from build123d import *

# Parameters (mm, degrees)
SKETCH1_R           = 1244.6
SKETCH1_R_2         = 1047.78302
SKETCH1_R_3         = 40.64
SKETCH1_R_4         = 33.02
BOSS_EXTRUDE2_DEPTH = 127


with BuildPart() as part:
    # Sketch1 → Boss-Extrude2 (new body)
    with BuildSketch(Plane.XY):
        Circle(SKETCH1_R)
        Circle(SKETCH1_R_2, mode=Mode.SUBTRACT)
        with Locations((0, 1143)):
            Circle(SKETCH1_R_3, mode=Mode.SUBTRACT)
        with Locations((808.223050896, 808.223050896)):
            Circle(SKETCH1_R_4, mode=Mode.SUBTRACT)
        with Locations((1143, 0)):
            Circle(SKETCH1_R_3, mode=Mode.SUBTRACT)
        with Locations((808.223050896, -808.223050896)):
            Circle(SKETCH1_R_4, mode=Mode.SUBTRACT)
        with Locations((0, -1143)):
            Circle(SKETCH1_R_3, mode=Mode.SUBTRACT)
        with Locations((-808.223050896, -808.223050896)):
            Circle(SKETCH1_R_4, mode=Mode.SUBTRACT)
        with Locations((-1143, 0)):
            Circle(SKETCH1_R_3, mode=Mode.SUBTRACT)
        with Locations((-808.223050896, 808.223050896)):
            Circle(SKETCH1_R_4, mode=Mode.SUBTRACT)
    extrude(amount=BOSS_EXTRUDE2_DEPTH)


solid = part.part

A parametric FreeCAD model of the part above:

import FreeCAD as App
import Part
import Sketcher
from FreeCAD import Vector
Q = App.Units.Quantity

doc = App.newDocument("Part")
body = doc.addObject("PartDesign::Body", "Body")

sketch1 = body.newObject("Sketcher::SketchObject", "Sketch")
sketch1.AttachmentSupport = (doc.getObject("XY_Plane"), [""])
sketch1.MapMode = "FlatFace"
sketch1.addGeometry([
    Part.Circle(Vector(0, 0, 0), Vector(0, 0, 1), 1245),
    Part.Circle(Vector(-808, -808, 0), Vector(0, 0, 1), 33),
    Part.Circle(Vector(0, -1143, 0), Vector(0, 0, 1), 41),
    Part.Circle(Vector(808, -808, 0), Vector(0, 0, 1), 33),
    Part.Circle(Vector(-1143, 0, 0), Vector(0, 0, 1), 41),
    Part.Circle(Vector(-808, 808, 0), Vector(0, 0, 1), 33),
    Part.Circle(Vector(0, 0, 0), Vector(0, 0, 1), 1048),
    Part.Circle(Vector(1143, 0, 0), Vector(0, 0, 1), 41),
    Part.Circle(Vector(0, 1143, 0), Vector(0, 0, 1), 41),
    Part.Circle(Vector(808, 808, 0), Vector(0, 0, 1), 33),
], False)
sketch1.addConstraint([
    Sketcher.Constraint("Coincident", 0, 3, -1, 1),
    Sketcher.Constraint("Coincident", 6, 3, -1, 1),
    Sketcher.Constraint("Equal", 1, 3),
    Sketcher.Constraint("Equal", 2, 4),
    Sketcher.Constraint("Equal", 3, 5),
    Sketcher.Constraint("Equal", 4, 7),
    Sketcher.Constraint("Equal", 7, 8),
    Sketcher.Constraint("Equal", 5, 9),
    Sketcher.Constraint("Symmetric", 3, 3, 5, 3, -1, 1),
    Sketcher.Constraint("Symmetric", 4, 3, 7, 3, -1, 1),
    Sketcher.Constraint("Symmetric", 2, 3, 8, 3, -1, 1),
    Sketcher.Constraint("Symmetric", 1, 3, 9, 3, -1, 1),
    Sketcher.Constraint("Symmetric", 1, 3, 3, 3, -2),
    Sketcher.Constraint("PointOnObject", 2, 3, -2),
    Sketcher.Constraint("PointOnObject", 4, 3, -1),
    Sketcher.Constraint("Diameter", 0, Q("98 in")),
    Sketcher.Constraint("Diameter", 1, Q("2.6 in")),
    Sketcher.Constraint("Diameter", 2, Q("3.2 in")),
    Sketcher.Constraint("DistanceY", 2, 3, -1, 1, Q("45 in")),
    Sketcher.Constraint("DistanceX", 4, 3, -1, 1, Q("45 in")),
    Sketcher.Constraint("Diameter", 6, Q("82.5026 in")),
    Sketcher.Constraint("DistanceX", 1, 3, 3, 3, Q("1616.446102 mm")),
    Sketcher.Constraint("DistanceY", 1, 3, 5, 3, Q("1616.446102 mm")),
])
pad1 = body.newObject("PartDesign::Pad", "Pad")
pad1.Profile = sketch1
pad1.Length = Q("5 in")

doc.recompute()
